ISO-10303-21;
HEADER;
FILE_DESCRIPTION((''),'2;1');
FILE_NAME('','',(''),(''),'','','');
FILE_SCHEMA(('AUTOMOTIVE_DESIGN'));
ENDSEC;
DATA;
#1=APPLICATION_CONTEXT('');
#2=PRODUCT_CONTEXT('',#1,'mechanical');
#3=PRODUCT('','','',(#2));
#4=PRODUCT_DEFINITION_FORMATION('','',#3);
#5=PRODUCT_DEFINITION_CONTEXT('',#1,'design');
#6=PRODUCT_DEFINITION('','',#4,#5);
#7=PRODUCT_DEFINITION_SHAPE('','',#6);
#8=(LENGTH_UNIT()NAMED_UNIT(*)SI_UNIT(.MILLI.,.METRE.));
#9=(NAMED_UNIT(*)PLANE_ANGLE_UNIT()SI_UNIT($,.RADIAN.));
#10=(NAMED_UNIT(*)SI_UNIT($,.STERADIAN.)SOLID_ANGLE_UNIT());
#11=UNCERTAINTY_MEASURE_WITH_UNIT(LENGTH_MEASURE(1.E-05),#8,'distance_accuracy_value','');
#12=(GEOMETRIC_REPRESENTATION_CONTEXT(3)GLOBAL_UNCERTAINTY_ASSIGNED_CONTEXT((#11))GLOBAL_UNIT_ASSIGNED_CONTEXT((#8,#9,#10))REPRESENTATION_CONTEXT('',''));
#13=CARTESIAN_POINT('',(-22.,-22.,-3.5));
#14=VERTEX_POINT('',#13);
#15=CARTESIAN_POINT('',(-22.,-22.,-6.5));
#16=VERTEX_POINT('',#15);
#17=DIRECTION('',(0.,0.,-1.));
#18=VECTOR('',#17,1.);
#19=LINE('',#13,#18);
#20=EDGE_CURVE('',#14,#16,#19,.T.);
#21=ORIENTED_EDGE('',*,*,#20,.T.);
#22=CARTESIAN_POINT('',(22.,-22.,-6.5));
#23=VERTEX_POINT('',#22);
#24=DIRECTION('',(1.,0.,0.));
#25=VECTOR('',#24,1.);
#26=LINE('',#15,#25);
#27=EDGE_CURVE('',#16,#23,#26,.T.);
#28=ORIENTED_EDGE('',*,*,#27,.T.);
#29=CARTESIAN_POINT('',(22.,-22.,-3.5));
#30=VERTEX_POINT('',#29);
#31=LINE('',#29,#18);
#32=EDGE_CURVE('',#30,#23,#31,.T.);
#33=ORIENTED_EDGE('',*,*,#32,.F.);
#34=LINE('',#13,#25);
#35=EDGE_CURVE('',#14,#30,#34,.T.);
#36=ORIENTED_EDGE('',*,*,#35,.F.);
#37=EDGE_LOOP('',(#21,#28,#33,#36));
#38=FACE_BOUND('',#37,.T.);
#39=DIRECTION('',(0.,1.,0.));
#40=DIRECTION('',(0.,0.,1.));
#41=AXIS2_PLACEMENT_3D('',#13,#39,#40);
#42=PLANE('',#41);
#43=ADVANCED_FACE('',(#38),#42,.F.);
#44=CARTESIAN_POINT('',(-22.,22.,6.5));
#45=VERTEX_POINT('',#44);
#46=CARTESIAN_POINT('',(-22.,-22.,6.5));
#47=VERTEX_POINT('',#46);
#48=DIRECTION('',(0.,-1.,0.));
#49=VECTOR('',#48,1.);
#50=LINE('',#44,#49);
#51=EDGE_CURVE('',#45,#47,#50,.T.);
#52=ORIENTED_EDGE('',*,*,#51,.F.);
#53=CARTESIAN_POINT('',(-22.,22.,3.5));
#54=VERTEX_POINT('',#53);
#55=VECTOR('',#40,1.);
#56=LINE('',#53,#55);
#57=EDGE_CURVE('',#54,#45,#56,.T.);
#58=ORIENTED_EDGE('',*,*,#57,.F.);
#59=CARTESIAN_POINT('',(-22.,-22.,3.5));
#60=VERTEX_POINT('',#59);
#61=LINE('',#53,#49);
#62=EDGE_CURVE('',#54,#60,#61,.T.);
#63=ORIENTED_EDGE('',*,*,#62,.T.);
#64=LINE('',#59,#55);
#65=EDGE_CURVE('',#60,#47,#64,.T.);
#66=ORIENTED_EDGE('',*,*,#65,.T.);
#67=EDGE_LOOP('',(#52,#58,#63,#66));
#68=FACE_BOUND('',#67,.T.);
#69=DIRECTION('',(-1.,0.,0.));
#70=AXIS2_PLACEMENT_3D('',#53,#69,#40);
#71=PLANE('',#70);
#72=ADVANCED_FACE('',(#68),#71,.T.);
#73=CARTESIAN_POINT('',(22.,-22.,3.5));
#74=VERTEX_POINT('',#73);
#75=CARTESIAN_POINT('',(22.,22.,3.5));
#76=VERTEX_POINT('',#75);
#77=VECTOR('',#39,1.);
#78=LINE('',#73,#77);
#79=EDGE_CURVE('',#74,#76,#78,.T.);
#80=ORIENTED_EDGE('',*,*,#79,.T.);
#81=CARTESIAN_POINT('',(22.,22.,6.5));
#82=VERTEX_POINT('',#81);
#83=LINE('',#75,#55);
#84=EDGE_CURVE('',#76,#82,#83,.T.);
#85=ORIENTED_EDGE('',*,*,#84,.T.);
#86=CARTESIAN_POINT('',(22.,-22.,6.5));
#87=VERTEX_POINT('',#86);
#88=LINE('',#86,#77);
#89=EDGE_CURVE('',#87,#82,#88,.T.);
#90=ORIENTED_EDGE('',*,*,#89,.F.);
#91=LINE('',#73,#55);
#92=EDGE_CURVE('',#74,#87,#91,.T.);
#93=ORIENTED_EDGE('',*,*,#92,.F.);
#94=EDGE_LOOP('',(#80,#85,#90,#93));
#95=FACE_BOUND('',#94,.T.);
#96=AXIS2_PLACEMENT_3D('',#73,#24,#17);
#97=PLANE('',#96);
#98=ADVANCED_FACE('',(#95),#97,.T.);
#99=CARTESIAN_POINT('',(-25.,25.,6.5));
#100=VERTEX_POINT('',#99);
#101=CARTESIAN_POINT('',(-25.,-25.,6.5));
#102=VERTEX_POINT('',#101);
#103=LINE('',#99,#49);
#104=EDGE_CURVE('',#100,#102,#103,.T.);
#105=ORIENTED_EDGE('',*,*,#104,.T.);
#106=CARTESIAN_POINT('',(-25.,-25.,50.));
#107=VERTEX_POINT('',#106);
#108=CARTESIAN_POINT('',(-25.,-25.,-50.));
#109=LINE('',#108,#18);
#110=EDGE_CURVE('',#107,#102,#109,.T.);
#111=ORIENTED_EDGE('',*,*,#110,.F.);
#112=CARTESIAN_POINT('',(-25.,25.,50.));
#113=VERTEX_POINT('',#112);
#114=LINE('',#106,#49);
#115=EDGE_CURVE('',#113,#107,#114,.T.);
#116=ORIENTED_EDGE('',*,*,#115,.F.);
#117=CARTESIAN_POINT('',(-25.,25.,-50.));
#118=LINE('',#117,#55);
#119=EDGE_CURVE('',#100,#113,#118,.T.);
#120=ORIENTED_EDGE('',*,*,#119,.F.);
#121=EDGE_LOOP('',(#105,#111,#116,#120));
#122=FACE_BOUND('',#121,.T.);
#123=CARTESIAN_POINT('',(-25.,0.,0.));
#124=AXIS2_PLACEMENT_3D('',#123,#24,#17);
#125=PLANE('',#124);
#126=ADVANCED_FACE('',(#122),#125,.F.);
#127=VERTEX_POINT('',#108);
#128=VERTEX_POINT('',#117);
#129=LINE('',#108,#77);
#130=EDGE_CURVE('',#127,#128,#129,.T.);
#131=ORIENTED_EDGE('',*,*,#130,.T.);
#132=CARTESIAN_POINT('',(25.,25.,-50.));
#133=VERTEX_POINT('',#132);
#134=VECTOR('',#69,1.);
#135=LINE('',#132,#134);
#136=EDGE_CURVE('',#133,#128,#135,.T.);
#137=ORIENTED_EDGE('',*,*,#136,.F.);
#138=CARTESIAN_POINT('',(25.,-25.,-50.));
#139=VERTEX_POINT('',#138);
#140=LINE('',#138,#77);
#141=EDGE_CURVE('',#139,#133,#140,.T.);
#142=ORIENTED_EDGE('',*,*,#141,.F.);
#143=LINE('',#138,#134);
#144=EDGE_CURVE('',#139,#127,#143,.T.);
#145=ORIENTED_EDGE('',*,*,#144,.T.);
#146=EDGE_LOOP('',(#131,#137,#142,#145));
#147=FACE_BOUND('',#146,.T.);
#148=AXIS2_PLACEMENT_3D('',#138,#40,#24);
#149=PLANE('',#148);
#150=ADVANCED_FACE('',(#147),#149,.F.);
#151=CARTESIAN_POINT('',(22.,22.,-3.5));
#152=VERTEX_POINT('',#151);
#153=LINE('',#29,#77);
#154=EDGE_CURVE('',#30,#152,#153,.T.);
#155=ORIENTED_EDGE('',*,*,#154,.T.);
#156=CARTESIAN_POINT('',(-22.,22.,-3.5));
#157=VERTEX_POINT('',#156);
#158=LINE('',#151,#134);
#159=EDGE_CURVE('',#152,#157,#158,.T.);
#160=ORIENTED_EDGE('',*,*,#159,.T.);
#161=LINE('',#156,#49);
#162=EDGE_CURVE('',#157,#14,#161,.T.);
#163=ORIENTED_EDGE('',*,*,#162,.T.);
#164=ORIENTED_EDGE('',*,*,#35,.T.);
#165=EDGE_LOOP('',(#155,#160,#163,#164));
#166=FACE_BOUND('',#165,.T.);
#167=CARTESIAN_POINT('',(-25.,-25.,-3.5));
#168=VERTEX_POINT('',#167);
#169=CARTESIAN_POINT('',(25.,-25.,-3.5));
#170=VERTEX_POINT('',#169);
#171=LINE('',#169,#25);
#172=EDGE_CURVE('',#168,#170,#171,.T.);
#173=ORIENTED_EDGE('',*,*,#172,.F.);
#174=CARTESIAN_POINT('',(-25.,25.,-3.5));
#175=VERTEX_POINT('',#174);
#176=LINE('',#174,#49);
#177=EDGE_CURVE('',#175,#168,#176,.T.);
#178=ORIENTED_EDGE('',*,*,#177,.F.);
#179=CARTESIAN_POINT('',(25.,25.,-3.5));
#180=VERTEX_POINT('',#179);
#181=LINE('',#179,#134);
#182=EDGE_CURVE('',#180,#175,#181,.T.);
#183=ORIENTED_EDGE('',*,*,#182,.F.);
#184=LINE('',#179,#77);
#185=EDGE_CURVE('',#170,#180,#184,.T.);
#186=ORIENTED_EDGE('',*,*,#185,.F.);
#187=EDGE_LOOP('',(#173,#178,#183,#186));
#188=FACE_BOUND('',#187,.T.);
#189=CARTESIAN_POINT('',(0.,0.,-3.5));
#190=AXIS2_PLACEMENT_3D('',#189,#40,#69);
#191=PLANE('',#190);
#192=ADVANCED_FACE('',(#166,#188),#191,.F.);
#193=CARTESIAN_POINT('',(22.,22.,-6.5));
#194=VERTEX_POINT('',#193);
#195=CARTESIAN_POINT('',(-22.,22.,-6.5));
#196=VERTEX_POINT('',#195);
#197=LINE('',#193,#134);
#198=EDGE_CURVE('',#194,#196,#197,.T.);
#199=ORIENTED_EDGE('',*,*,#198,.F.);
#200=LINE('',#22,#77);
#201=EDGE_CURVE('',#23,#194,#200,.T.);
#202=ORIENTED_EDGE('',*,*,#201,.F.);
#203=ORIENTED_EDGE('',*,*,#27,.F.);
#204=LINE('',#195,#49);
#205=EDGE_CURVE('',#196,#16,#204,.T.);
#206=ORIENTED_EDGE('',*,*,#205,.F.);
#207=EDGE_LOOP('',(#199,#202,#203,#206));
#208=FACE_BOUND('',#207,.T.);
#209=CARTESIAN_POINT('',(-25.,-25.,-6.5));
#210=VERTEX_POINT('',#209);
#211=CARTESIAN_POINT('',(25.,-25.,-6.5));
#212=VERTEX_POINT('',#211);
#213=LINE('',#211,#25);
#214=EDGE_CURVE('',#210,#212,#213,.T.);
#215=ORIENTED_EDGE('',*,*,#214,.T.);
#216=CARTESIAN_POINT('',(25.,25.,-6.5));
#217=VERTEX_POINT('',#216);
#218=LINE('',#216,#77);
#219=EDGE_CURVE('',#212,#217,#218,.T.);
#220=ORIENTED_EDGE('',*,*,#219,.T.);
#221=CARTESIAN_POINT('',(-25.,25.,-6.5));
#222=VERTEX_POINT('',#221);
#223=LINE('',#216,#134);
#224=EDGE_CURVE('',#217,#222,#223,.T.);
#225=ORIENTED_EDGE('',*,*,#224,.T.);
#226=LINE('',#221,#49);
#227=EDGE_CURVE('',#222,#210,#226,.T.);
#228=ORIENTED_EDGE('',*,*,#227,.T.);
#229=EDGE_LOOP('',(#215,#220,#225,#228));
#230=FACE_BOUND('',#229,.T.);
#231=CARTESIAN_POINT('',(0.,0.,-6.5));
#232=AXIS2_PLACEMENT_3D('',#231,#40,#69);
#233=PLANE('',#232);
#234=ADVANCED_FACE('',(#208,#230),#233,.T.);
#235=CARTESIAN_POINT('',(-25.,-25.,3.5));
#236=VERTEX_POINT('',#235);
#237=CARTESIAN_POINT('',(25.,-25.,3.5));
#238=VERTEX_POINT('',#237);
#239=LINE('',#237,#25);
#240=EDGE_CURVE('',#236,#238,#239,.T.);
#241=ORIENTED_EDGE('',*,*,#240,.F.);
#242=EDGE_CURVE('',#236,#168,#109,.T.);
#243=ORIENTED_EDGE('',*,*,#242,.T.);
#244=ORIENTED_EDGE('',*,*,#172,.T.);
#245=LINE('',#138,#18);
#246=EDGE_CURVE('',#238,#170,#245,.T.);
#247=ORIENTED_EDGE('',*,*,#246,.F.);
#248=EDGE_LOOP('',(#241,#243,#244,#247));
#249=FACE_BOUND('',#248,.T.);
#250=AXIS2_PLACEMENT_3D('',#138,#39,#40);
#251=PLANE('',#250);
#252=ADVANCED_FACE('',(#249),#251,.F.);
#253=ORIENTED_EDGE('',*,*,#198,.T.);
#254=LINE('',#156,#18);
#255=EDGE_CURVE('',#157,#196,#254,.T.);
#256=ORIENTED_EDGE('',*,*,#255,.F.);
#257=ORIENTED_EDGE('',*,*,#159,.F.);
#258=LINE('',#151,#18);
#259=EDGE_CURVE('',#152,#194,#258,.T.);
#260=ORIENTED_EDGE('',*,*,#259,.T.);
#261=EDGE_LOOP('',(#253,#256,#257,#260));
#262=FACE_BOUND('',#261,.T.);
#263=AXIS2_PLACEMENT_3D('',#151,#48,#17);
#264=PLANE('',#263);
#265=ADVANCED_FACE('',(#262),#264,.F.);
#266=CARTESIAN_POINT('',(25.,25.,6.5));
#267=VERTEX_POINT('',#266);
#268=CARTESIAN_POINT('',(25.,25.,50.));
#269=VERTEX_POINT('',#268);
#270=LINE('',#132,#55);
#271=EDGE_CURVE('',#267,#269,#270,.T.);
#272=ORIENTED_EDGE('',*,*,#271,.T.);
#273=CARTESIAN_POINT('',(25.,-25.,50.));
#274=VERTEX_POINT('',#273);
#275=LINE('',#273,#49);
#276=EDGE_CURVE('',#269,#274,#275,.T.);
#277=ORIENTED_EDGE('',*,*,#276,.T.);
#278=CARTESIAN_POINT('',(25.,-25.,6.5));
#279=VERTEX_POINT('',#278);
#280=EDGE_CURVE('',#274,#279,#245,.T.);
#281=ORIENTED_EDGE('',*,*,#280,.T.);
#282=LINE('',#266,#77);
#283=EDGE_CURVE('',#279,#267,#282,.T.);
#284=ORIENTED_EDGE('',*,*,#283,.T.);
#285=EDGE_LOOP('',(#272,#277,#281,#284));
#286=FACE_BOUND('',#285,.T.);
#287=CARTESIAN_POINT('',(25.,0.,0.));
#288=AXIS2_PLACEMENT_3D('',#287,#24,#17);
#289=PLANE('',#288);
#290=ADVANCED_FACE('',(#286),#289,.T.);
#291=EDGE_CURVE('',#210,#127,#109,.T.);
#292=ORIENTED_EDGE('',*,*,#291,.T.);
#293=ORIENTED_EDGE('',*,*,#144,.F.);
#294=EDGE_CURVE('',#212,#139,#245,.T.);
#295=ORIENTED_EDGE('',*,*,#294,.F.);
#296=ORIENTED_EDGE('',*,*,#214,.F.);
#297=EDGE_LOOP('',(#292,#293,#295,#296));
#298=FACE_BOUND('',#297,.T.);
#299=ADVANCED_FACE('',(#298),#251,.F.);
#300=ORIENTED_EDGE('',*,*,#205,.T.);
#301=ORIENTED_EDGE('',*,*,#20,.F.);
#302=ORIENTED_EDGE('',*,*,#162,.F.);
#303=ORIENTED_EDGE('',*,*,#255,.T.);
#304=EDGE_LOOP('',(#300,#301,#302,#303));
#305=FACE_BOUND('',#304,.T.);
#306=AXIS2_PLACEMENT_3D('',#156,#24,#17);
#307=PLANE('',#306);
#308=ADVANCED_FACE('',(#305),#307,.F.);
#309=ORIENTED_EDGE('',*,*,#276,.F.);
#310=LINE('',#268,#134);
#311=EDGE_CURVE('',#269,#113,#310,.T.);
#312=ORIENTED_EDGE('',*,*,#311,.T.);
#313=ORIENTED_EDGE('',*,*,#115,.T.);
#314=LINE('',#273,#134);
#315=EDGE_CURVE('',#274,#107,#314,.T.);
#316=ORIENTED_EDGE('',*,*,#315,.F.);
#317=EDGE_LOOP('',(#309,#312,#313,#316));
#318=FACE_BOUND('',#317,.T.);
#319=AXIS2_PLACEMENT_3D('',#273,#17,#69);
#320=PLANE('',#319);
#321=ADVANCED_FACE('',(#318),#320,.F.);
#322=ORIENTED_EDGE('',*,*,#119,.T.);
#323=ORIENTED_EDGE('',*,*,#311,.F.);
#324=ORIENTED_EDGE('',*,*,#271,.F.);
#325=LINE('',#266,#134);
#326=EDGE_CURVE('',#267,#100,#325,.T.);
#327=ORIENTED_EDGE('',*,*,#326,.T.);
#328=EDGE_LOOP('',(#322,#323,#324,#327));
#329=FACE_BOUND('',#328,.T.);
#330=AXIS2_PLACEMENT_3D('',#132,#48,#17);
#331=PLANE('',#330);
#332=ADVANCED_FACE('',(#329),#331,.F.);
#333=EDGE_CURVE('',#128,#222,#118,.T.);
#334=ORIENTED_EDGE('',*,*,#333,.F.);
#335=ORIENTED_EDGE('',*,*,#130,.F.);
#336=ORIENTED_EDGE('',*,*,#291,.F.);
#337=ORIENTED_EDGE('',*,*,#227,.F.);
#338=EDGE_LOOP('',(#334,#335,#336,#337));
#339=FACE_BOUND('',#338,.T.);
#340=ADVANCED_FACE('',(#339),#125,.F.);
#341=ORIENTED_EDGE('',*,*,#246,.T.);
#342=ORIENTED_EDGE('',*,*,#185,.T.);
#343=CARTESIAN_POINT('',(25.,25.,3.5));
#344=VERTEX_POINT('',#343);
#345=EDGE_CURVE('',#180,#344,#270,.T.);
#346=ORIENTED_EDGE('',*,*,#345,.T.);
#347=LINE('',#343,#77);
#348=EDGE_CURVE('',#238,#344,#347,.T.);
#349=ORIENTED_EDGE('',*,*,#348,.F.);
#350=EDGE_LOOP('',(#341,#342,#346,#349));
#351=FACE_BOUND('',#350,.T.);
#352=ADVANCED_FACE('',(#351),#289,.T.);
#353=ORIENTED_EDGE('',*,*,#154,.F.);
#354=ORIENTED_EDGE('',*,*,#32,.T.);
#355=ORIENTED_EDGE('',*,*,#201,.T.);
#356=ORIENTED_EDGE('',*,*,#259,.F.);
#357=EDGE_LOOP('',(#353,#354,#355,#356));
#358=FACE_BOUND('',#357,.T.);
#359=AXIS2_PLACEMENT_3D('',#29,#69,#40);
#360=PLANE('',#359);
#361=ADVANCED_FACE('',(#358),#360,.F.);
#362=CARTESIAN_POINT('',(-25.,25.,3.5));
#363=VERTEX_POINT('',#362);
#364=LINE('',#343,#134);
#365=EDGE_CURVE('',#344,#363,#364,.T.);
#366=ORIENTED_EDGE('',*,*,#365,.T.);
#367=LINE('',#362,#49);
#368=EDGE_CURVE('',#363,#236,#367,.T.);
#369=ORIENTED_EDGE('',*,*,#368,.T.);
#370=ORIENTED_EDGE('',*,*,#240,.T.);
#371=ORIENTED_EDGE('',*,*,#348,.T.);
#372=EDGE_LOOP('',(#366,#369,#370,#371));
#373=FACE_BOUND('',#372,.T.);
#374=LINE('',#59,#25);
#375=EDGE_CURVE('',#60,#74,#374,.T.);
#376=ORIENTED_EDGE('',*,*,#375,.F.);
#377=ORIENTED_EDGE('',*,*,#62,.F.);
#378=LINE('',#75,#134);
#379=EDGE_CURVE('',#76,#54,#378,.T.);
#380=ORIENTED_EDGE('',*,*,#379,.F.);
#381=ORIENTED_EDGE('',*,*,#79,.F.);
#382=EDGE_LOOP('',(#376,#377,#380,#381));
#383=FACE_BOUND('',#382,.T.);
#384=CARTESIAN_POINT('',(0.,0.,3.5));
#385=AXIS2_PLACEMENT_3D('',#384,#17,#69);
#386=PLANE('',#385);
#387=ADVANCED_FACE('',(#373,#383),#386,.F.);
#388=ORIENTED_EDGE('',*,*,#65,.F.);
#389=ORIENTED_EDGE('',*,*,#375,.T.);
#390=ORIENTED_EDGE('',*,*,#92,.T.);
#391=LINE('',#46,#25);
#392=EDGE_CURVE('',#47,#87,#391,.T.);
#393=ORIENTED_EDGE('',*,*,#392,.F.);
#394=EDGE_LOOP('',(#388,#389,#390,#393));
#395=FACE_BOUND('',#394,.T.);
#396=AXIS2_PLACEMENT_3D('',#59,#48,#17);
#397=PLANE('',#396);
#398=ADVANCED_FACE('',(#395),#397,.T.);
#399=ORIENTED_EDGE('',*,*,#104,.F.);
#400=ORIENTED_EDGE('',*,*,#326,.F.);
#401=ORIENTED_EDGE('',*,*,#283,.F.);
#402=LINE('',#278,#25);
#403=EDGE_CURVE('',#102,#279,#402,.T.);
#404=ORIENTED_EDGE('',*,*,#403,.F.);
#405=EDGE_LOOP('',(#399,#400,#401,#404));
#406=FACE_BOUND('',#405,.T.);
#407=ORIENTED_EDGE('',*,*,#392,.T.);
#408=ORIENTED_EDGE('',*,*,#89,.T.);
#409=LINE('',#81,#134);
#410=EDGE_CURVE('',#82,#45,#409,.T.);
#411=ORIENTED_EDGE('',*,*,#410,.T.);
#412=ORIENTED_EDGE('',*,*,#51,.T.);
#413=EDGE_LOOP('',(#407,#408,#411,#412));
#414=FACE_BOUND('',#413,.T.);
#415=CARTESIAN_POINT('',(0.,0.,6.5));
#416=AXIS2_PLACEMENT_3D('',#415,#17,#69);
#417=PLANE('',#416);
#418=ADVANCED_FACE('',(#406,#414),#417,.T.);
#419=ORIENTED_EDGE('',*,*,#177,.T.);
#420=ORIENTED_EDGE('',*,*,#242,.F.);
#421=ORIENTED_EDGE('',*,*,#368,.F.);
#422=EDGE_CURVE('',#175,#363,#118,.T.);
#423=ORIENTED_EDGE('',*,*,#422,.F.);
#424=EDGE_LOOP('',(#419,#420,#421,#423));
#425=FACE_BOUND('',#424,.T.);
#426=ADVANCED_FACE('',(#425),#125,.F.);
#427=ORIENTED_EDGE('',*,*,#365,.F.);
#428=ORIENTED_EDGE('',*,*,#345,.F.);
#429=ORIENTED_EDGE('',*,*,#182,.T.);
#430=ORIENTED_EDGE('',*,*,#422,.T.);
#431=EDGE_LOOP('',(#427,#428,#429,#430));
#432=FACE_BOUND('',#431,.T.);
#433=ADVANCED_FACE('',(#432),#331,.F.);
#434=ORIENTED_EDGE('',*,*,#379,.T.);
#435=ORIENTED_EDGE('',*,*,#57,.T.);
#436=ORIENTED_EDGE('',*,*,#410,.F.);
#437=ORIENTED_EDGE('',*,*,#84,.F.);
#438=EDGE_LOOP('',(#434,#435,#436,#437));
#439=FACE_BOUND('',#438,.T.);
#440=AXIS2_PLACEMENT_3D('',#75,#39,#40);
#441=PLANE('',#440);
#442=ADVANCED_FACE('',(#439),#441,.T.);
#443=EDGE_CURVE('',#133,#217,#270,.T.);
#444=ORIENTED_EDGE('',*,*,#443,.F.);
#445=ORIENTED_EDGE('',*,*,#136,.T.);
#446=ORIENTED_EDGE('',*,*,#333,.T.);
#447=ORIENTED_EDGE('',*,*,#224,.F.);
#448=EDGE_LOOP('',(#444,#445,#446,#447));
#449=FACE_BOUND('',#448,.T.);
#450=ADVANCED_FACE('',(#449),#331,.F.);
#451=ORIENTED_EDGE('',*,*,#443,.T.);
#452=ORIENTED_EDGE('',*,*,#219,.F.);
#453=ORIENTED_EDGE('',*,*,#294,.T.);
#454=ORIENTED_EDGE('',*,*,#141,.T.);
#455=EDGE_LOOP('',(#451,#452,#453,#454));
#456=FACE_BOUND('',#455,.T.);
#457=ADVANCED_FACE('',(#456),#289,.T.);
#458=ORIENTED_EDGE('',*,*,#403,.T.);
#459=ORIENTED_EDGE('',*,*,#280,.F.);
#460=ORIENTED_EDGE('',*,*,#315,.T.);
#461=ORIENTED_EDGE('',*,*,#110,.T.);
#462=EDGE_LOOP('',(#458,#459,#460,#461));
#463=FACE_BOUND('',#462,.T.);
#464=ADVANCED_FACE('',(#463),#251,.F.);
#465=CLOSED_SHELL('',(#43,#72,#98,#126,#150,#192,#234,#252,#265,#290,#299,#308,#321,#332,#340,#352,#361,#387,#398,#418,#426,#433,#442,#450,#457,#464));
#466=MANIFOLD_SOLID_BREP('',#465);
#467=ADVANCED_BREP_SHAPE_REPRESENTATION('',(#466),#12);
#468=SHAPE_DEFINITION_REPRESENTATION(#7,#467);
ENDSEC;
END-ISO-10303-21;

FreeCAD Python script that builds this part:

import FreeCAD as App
import Part
import Sketcher


def add_polygon(sketch, points):
    """Adds a closed chain of lines whose ends are joined by coincident constraints."""
    first, n = sketch.GeometryCount, len(points)
    for a, b in zip(points, points[1:] + points[:1]):
        sketch.addGeometry(Part.LineSegment(App.Vector(*a, 0), App.Vector(*b, 0)), False)
    for i in range(n):
        sketch.addConstraint(Sketcher.Constraint("Coincident", first + i, 2, first + (i + 1) % n, 1))

doc = App.newDocument("Part")
body = doc.addObject("PartDesign::Body", "Body")

# Sketch on YZ plane
sketch1 = body.newObject("Sketcher::SketchObject", "Sketch")
sketch1.AttachmentSupport = (doc.getObject("YZ_Plane"), [""])
sketch1.MapMode = "FlatFace"
add_polygon(sketch1, [(25, 50), (-25, 50), (-25, -50), (25, -50)])  # lines 0-3
sketch1.addConstraint(Sketcher.Constraint("Horizontal", 0))
sketch1.addConstraint(Sketcher.Constraint("Vertical", 1))
sketch1.addConstraint(Sketcher.Constraint("Horizontal", 2))
sketch1.addConstraint(Sketcher.Constraint("Vertical", 3))
sketch1.addConstraint(Sketcher.Constraint("Symmetric", 0, 2, 2, 2, -1, 1))
sketch1.addConstraint(Sketcher.Constraint("DistanceX", 0, 2, 0, 1, 50.0))
sketch1.addConstraint(Sketcher.Constraint("DistanceY", 1, 2, 1, 1, 100.0))
pad1 = body.newObject("PartDesign::Pad", "Pad")
pad1.Profile = sketch1
pad1.Length = 50
pad1.Midplane = True

# Sketch on XY plane
sketch2 = body.newObject("Sketcher::SketchObject", "Sketch001")
sketch2.AttachmentSupport = (doc.getObject("XY_Plane"), [""])
sketch2.MapMode = "FlatFace"
sketch2.AttachmentOffset = App.Placement(App.Vector(0, 0, 5), App.Rotation())
add_polygon(sketch2, [(-25, 25), (-25, -25), (25, -25), (25, 25)])  # lines 0-3
add_polygon(sketch2, [(22, -22), (-22, -22), (-22, 22), (22, 22)])  # lines 4-7
sketch2.addConstraint(Sketcher.Constraint("Vertical", 0))
sketch2.addConstraint(Sketcher.Constraint("Horizontal", 1))
sketch2.addConstraint(Sketcher.Constraint("Vertical", 2))
sketch2.addConstraint(Sketcher.Constraint("Horizontal", 3))
sketch2.addConstraint(Sketcher.Constraint("Horizontal", 4))
sketch2.addConstraint(Sketcher.Constraint("Vertical", 5))
sketch2.addConstraint(Sketcher.Constraint("Horizontal", 6))
sketch2.addConstraint(Sketcher.Constraint("Vertical", 7))
sketch2.addConstraint(Sketcher.Constraint("Symmetric", 0, 2, 2, 2, -1, 1))
sketch2.addConstraint(Sketcher.Constraint("Symmetric", 4, 2, 6, 2, -1, 1))
sketch2.addConstraint(Sketcher.Constraint("Equal", 3, 0))
sketch2.addConstraint(Sketcher.Constraint("Equal", 6, 5))
sketch2.addConstraint(Sketcher.Constraint("DistanceX", 1, 1, 1, 2, 50.0))
sketch2.addConstraint(Sketcher.Constraint("DistanceX", 4, 2, 4, 1, 44.0))
pocket1 = body.newObject("PartDesign::Pocket", "Pocket")
pocket1.Profile = sketch2
pocket1.Length = 3
pocket1.Midplane = True
doc.recompute()

mirrored = body.newObject("PartDesign::Mirrored", "Mirrored")
mirrored.Originals = [pocket1]
mirrored.MirrorPlane = (doc.getObject("XY_Plane"), [""])
body.Tip = mirrored

doc.recompute()
